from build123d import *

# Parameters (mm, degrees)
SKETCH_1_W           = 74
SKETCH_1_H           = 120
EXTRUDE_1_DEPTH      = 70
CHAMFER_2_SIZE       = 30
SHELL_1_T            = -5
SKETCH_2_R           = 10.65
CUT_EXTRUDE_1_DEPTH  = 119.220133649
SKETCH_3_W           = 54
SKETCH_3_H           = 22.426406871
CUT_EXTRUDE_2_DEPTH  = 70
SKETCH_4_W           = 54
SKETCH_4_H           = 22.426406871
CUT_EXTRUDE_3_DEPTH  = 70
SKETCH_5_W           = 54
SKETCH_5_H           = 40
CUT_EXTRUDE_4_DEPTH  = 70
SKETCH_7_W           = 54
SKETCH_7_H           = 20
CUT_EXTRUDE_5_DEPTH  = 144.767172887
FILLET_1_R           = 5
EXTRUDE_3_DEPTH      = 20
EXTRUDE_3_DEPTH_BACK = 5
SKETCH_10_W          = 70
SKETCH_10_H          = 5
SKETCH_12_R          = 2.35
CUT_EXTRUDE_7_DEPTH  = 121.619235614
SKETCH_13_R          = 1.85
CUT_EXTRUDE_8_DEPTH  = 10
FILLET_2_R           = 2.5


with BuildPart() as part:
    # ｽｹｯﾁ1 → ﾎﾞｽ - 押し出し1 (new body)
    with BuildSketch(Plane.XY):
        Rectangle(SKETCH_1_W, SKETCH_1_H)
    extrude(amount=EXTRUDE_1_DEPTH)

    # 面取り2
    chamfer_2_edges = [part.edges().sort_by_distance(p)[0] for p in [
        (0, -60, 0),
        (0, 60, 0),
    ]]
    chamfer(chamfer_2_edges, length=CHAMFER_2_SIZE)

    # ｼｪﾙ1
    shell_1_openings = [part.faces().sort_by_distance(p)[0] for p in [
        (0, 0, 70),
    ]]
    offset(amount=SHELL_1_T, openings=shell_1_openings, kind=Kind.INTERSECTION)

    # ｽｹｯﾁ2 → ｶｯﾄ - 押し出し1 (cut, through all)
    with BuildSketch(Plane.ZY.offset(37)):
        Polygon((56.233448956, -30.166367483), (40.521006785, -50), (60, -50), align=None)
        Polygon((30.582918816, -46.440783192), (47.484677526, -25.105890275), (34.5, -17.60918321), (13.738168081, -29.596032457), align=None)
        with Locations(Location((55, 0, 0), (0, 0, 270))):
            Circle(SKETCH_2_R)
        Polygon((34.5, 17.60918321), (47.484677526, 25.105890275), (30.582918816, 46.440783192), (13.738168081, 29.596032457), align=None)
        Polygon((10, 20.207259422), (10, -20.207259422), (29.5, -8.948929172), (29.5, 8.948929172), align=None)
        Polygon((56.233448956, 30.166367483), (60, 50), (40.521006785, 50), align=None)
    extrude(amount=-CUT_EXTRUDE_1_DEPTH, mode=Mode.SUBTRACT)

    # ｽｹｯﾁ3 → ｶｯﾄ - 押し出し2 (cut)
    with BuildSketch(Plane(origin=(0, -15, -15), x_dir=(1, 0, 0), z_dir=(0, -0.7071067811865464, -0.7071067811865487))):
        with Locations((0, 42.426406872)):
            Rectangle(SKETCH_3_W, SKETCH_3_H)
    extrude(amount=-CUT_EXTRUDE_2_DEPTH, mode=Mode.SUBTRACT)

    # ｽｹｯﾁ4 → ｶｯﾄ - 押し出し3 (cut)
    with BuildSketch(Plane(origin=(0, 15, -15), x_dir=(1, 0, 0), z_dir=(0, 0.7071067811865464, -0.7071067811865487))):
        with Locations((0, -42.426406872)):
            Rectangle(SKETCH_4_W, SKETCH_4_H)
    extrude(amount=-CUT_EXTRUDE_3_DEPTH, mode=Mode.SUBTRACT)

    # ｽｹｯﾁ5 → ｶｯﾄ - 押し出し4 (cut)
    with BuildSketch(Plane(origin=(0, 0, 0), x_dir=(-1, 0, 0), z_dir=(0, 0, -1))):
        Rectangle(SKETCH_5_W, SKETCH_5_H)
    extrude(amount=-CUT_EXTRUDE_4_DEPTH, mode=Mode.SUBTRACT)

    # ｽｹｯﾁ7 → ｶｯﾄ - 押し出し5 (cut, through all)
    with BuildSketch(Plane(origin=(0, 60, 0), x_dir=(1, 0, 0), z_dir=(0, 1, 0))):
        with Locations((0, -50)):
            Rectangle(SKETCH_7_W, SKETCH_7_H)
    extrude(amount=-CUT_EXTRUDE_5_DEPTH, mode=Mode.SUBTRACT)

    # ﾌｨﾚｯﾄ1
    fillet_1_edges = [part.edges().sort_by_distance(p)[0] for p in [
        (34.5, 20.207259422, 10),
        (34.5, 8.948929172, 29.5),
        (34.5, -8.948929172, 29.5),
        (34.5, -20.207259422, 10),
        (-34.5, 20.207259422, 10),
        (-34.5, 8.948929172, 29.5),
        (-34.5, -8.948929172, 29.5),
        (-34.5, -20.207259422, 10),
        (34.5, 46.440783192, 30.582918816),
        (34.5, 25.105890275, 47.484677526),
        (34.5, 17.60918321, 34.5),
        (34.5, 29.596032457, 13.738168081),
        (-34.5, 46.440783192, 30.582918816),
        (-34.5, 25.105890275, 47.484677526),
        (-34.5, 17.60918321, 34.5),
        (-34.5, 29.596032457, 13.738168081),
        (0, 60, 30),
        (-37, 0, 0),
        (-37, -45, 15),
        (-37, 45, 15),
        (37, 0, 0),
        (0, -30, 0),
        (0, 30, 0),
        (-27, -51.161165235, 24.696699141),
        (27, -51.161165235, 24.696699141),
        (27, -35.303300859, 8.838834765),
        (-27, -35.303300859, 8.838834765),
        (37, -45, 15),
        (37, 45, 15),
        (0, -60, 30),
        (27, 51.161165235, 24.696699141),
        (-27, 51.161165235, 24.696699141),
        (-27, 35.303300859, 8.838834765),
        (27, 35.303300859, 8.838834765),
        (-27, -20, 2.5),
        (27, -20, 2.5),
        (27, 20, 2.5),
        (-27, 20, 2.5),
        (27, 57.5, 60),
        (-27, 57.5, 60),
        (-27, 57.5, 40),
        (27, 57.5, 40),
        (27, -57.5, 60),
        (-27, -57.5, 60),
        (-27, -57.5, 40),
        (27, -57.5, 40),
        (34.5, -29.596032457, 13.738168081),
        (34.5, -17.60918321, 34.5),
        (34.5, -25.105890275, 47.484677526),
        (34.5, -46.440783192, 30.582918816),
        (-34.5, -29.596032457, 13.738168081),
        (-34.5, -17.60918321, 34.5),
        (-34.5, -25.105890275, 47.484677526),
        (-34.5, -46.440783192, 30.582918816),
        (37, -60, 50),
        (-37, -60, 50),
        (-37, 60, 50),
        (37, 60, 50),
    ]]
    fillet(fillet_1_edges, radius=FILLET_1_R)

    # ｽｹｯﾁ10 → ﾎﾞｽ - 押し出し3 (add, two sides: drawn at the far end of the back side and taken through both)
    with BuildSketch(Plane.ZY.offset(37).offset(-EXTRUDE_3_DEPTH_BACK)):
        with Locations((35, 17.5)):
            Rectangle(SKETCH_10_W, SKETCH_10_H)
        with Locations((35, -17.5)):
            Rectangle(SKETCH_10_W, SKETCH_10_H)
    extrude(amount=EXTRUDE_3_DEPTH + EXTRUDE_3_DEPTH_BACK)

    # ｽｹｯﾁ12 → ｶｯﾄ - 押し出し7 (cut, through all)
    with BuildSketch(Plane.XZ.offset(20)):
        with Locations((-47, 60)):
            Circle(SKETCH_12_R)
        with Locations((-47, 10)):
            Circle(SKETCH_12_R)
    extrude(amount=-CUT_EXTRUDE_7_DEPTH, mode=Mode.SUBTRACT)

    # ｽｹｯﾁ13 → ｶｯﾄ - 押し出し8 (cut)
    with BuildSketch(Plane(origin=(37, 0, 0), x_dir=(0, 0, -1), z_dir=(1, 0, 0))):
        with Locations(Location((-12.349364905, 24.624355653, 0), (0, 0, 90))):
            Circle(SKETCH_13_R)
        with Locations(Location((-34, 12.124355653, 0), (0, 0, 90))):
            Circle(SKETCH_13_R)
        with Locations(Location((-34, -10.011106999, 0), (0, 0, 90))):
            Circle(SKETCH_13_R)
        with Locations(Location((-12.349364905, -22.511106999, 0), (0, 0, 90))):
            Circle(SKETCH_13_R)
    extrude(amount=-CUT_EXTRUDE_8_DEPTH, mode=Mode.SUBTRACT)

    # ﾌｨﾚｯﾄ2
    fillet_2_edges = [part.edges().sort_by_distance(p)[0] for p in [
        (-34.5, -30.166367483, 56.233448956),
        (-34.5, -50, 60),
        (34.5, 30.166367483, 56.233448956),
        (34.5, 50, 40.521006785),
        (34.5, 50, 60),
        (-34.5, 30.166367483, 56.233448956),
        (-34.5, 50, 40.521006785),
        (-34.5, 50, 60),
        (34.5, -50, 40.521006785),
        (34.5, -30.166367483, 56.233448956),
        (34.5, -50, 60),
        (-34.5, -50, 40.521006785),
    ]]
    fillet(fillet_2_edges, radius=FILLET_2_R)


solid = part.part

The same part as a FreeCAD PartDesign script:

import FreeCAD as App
import Part
import Sketcher
from FreeCAD import Vector
Q = App.Units.Quantity


def edges_at(feature, points):
    """Names of the edges that pass closest to the given points."""
    edges = feature.Shape.Edges
    near = lambda p: min(range(len(edges)), key=lambda i: edges[i].distToShape(Part.Vertex(*p))[0])
    return sorted({f"Edge{near(p) + 1}" for p in points})


def faces_at(feature, points):
    """Names of the faces that lie closest to the given points."""
    faces = feature.Shape.Faces
    near = lambda p: min(range(len(faces)), key=lambda i: faces[i].distToShape(Part.Vertex(*p))[0])
    return sorted({f"Face{near(p) + 1}" for p in points})

doc = App.newDocument("Part")
body = doc.addObject("PartDesign::Body", "Body")

# Sketch on XY plane
sketch1 = body.newObject("Sketcher::SketchObject", "Sketch")
sketch1.AttachmentSupport = (doc.getObject("XY_Plane"), [""])
sketch1.MapMode = "FlatFace"
sketch1.addGeometry([
    Part.LineSegment(Vector(-37, 60, 0), Vector(-37, -60, 0)),
    Part.LineSegment(Vector(-37, -60, 0), Vector(37, -60, 0)),
    Part.LineSegment(Vector(37, -60, 0), Vector(37, 60, 0)),
    Part.LineSegment(Vector(37, 60, 0), Vector(-37, 60, 0)),
], False)
sketch1.addConstraint([
    Sketcher.Constraint("Coincident", 0, 2, 1, 1),
    Sketcher.Constraint("Coincident", 1, 2, 2, 1),
    Sketcher.Constraint("Coincident", 2, 2, 3, 1),
    Sketcher.Constraint("Coincident", 3, 2, 0, 1),
    Sketcher.Constraint("Vertical", 0),
    Sketcher.Constraint("Horizontal", 1),
    Sketcher.Constraint("Vertical", 2),
    Sketcher.Constraint("Horizontal", 3),
    Sketcher.Constraint("Symmetric", 0, 2, 2, 2, -1, 1),
    Sketcher.Constraint("DistanceX", 1, 1, 1, 2, Q("74 mm")),
    Sketcher.Constraint("DistanceY", 0, 2, 0, 1, Q("120 mm")),
])
pad1 = body.newObject("PartDesign::Pad", "Pad")
pad1.Profile = sketch1
pad1.Length = 70
doc.recompute()

chamfer = body.newObject("PartDesign::Chamfer", "Chamfer")
chamfer.Base = (pad1, edges_at(pad1, [(0, -60, 0), (0, 60, 0)]))
chamfer.Size = 30
doc.recompute()

thickness = body.newObject("PartDesign::Thickness", "Thickness")
thickness.Base = (chamfer, faces_at(chamfer, [(0, 0, 70)]))
thickness.Value = 5
thickness.Reversed = True
thickness.Join = "Intersection"

# Sketch on YZ plane
sketch2 = body.newObject("Sketcher::SketchObject", "Sketch001")
sketch2.AttachmentSupport = (doc.getObject("YZ_Plane"), [""])
sketch2.MapMode = "FlatFace"
sketch2.AttachmentOffset = App.Placement(Vector(0, 0, -37), App.Rotation())
sketch2.addGeometry([
    Part.LineSegment(Vector(-30, 56, 0), Vector(-50, 41, 0)),  # 0
    Part.LineSegment(Vector(-50, 41, 0), Vector(-50, 60, 0)),  # 1
    Part.LineSegment(Vector(-50, 60, 0), Vector(-30, 56, 0)),  # 2
    Part.LineSegment(Vector(-46, 31, 0), Vector(-25, 47, 0)),  # 3
    Part.LineSegment(Vector(-25, 47, 0), Vector(-18, 34, 0)),  # 4
    Part.LineSegment(Vector(-18, 34, 0), Vector(-30, 14, 0)),  # 5
    Part.LineSegment(Vector(-30, 14, 0), Vector(-46, 31, 0)),  # 6
    Part.Circle(Vector(0, 55, 0), Vector(0, 0, 1), 11),  # 7
    Part.LineSegment(Vector(18, 34, 0), Vector(25, 47, 0)),  # 8
    Part.LineSegment(Vector(25, 47, 0), Vector(46, 31, 0)),  # 9
    Part.LineSegment(Vector(46, 31, 0), Vector(30, 14, 0)),  # 10
    Part.LineSegment(Vector(30, 14, 0), Vector(18, 34, 0)),  # 11
    Part.LineSegment(Vector(20, 10, 0), Vector(-20, 10, 0)),  # 12
    Part.LineSegment(Vector(-20, 10, 0), Vector(-9, 30, 0)),  # 13
    Part.LineSegment(Vector(-9, 30, 0), Vector(9, 30, 0)),  # 14
    Part.LineSegment(Vector(9, 30, 0), Vector(20, 10, 0)),  # 15
    Part.LineSegment(Vector(30, 56, 0), Vector(50, 60, 0)),  # 16
    Part.LineSegment(Vector(50, 60, 0), Vector(50, 41, 0)),  # 17
    Part.LineSegment(Vector(50, 41, 0), Vector(30, 56, 0)),  # 18
], False)
sketch2.addConstraint([
    Sketcher.Constraint("Coincident", 0, 2, 1, 1),
    Sketcher.Constraint("Coincident", 1, 2, 2, 1),
    Sketcher.Constraint("Coincident", 2, 2, 0, 1),
    Sketcher.Constraint("Coincident", 3, 2, 4, 1),
    Sketcher.Constraint("Coincident", 4, 2, 5, 1),
    Sketcher.Constraint("Coincident", 5, 2, 6, 1),
    Sketcher.Constraint("Coincident", 6, 2, 3, 1),
    Sketcher.Constraint("Coincident", 8, 2, 9, 1),
    Sketcher.Constraint("Coincident", 9, 2, 10, 1),
    Sketcher.Constraint("Coincident", 10, 2, 11, 1),
    Sketcher.Constraint("Coincident", 11, 2, 8, 1),
    Sketcher.Constraint("Coincident", 12, 2, 13, 1),
    Sketcher.Constraint("Coincident", 13, 2, 14, 1),
    Sketcher.Constraint("Coincident", 14, 2, 15, 1),
    Sketcher.Constraint("Coincident", 15, 2, 12, 1),
    Sketcher.Constraint("Coincident", 16, 2, 17, 1),
    Sketcher.Constraint("Coincident", 17, 2, 18, 1),
    Sketcher.Constraint("Coincident", 18, 2, 16, 1),
    Sketcher.Constraint("Vertical", 1),
    Sketcher.Constraint("Horizontal", 12),
    Sketcher.Constraint("Horizontal", 14),
    Sketcher.Constraint("Vertical", 17),
    Sketcher.Constraint("Symmetric", 3, 2, 8, 2, -2),
    Sketcher.Constraint("Symmetric", 6, 2, 9, 2, -2),
    Sketcher.Constraint("Symmetric", 5, 2, 10, 2, -2),
    Sketcher.Constraint("Symmetric", 4, 2, 11, 2, -2),
    Sketcher.Constraint("Symmetric", 1, 2, 16, 2, -2),
    Sketcher.Constraint("Symmetric", 2, 2, 18, 2, -2),
    Sketcher.Constraint("PointOnObject", 7, 3, -2),
    Sketcher.Constraint("Parallel", 0, 3),
    Sketcher.Constraint("Parallel", 5, 8),
    Sketcher.Constraint("Perpendicular", 6, 10),
    Sketcher.Constraint("Parallel", 8, 13),
    Sketcher.Constraint("Parallel", 11, 15),
    Sketcher.Constraint("Parallel", 9, 18),
    Sketcher.Constraint("Diameter", 7, Q("21.3 mm")),
    Sketcher.Constraint("Angle", 4, Q("-60 deg")),
    Sketcher.Constraint("DistanceY", -1, 1, 7, 3, Q("55 mm")),
    Sketcher.Constraint("DistanceX", 0, 2, -1, 1, Q("50 mm")),
    Sketcher.Constraint("DistanceY", -1, 1, 1, 2, Q("60 mm")),
    Sketcher.Constraint("DistanceY", -1, 1, 12, 2, Q("10 mm")),
    Sketcher.Constraint("DistanceY", 13, 2, 4, 2, Q("5 mm")),
    Sketcher.Constraint("DistanceY", -1, 1, 4, 2, Q("34.5 mm")),
    Sketcher.Constraint("Distance", 5, Q("23.973698 mm")),
    Sketcher.Constraint("DistanceX", 12, 2, 12, 1, Q("40.414519 mm")),
    Sketcher.Constraint("DistanceX", 6, 2, 4, 2, Q("28.8316 mm")),
    Sketcher.Constraint("DistanceY", 1, 1, 1, 2, Q("19.478993 mm")),
    Sketcher.Constraint("DistanceY", -1, 1, 2, 2, Q("56.233449 mm")),
    Sketcher.Constraint("DistanceX", 3, 2, -1, 1, Q("25.10589 mm")),
    Sketcher.Constraint("DistanceX", 12, 2, -1, 1, Q("20.207259 mm")),
    Sketcher.Constraint("DistanceY", 3, 2, 2, 2, Q("8.748771 mm")),
])
pocket1 = body.newObject("PartDesign::Pocket", "Pocket")
pocket1.Profile = sketch2
pocket1.Type = "ThroughAll"
pocket1.Reversed = True

# Sketch on an angled plane
sketch3 = body.newObject("Sketcher::SketchObject", "Sketch002")
sketch3.Placement = App.Placement(Vector(0, -15, -15), App.Rotation(Vector(1, 0, 0), Vector(0, -0.707106781, 0.707106781), Vector(0, -0.707106781, -0.707106781), "ZXY"))
sketch3.addGeometry([
    Part.LineSegment(Vector(-27, 54, 0), Vector(-27, 31, 0)),
    Part.LineSegment(Vector(-27, 31, 0), Vector(27, 31, 0)),
    Part.LineSegment(Vector(27, 31, 0), Vector(27, 54, 0)),
    Part.LineSegment(Vector(27, 54, 0), Vector(-27, 54, 0)),
], False)
sketch3.addConstraint([
    Sketcher.Constraint("Coincident", 0, 2, 1, 1),
    Sketcher.Constraint("Coincident", 1, 2, 2, 1),
    Sketcher.Constraint("Coincident", 2, 2, 3, 1),
    Sketcher.Constraint("Coincident", 3, 2, 0, 1),
    Sketcher.Constraint("Vertical", 0),
    Sketcher.Constraint("Horizontal", 1),
    Sketcher.Constraint("Vertical", 2),
    Sketcher.Constraint("Horizontal", 3),
    Sketcher.Constraint("DistanceX", 1, 1, 1, 2, Q("54 mm")),
    Sketcher.Constraint("DistanceX", 0, 2, -1, 1, Q("27 mm")),
    Sketcher.Constraint("DistanceY", 0, 2, 0, 1, Q("22.426407 mm")),
    Sketcher.Constraint("DistanceY", -1, 1, 2, 2, Q("53.63961 mm")),
])
pocket2 = body.newObject("PartDesign::Pocket", "Pocket001")
pocket2.Profile = sketch3
pocket2.Length = 70

# Sketch on an angled plane
sketch4 = body.newObject("Sketcher::SketchObject", "Sketch003")
sketch4.Placement = App.Placement(Vector(0, 15, -15), App.Rotation(Vector(1, 0, 0), Vector(0, -0.707106781, -0.707106781), Vector(0, 0.707106781, -0.707106781), "ZXY"))
sketch4.addGeometry([
    Part.LineSegment(Vector(-27, -31, 0), Vector(-27, -54, 0)),
    Part.LineSegment(Vector(-27, -54, 0), Vector(27, -54, 0)),
    Part.LineSegment(Vector(27, -54, 0), Vector(27, -31, 0)),
    Part.LineSegment(Vector(27, -31, 0), Vector(-27, -31, 0)),
], False)
sketch4.addConstraint([
    Sketcher.Constraint("Coincident", 0, 2, 1, 1),
    Sketcher.Constraint("Coincident", 1, 2, 2, 1),
    Sketcher.Constraint("Coincident", 2, 2, 3, 1),
    Sketcher.Constraint("Coincident", 3, 2, 0, 1),
    Sketcher.Constraint("Vertical", 0),
    Sketcher.Constraint("Horizontal", 1),
    Sketcher.Constraint("Vertical", 2),
    Sketcher.Constraint("Horizontal", 3),
    Sketcher.Constraint("DistanceX", 1, 1, 1, 2, Q("54 mm")),
    Sketcher.Constraint("DistanceX", 0, 2, -1, 1, Q("27 mm")),
    Sketcher.Constraint("DistanceY", 0, 2, 0, 1, Q("22.426407 mm")),
    Sketcher.Constraint("DistanceY", 0, 2, -1, 1, Q("53.63961 mm")),
])
pocket3 = body.newObject("PartDesign::Pocket", "Pocket002")
pocket3.Profile = sketch4
pocket3.Length = 70

# Sketch on XY plane
sketch5 = body.newObject("Sketcher::SketchObject", "Sketch004")
sketch5.AttachmentSupport = (doc.getObject("XY_Plane"), [""])
sketch5.MapMode = "FlatFace"
sketch5.addGeometry([
    Part.LineSegment(Vector(27, 20, 0), Vector(27, -20, 0)),
    Part.LineSegment(Vector(27, -20, 0), Vector(-27, -20, 0)),
    Part.LineSegment(Vector(-27, -20, 0), Vector(-27, 20, 0)),
    Part.LineSegment(Vector(-27, 20, 0), Vector(27, 20, 0)),
], False)
sketch5.addConstraint([
    Sketcher.Constraint("Coincident", 0, 2, 1, 1),
    Sketcher.Constraint("Coincident", 1, 2, 2, 1),
    Sketcher.Constraint("Coincident", 2, 2, 3, 1),
    Sketcher.Constraint("Coincident", 3, 2, 0, 1),
    Sketcher.Constraint("Vertical", 0),
    Sketcher.Constraint("Horizontal", 1),
    Sketcher.Constraint("Vertical", 2),
    Sketcher.Constraint("Horizontal", 3),
    Sketcher.Constraint("Symmetric", 0, 2, 2, 2, -1, 1),
    Sketcher.Constraint("DistanceX", 1, 2, 1, 1, Q("54 mm")),
    Sketcher.Constraint("DistanceY", 0, 2, 0, 1, Q("40 mm")),
])
pocket4 = body.newObject("PartDesign::Pocket", "Pocket003")
pocket4.Profile = sketch5
pocket4.Length = 70
pocket4.Reversed = True

# Sketch on XZ plane
sketch6 = body.newObject("Sketcher::SketchObject", "Sketch005")
sketch6.AttachmentSupport = (doc.getObject("XZ_Plane"), [""])
sketch6.MapMode = "FlatFace"
sketch6.AttachmentOffset = App.Placement(Vector(0, 0, -60), App.Rotation())
sketch6.addGeometry([
    Part.LineSegment(Vector(-27, 40, 0), Vector(-27, 60, 0)),
    Part.LineSegment(Vector(-27, 60, 0), Vector(27, 60, 0)),
    Part.LineSegment(Vector(27, 60, 0), Vector(27, 40, 0)),
    Part.LineSegment(Vector(27, 40, 0), Vector(-27, 40, 0)),
], False)
sketch6.addConstraint([
    Sketcher.Constraint("Coincident", 0, 2, 1, 1),
    Sketcher.Constraint("Coincident", 1, 2, 2, 1),
    Sketcher.Constraint("Coincident", 2, 2, 3, 1),
    Sketcher.Constraint("Coincident", 3, 2, 0, 1),
    Sketcher.Constraint("Vertical", 0),
    Sketcher.Constraint("Horizontal", 1),
    Sketcher.Constraint("Vertical", 2),
    Sketcher.Constraint("Horizontal", 3),
    Sketcher.Constraint("DistanceX", 1, 1, 1, 2, Q("54 mm")),
    Sketcher.Constraint("DistanceY", 0, 1, 0, 2, Q("20 mm")),
    Sketcher.Constraint("DistanceX", 0, 2, -1, 1, Q("27 mm")),
    Sketcher.Constraint("DistanceY", -1, 1, 0, 2, Q("60 mm")),
])
pocket5 = body.newObject("PartDesign::Pocket", "Pocket004")
pocket5.Profile = sketch6
pocket5.Type = "ThroughAll"
pocket5.Reversed = True
doc.recompute()

fillet = body.newObject("PartDesign::Fillet", "Fillet")
fillet.Base = (pocket5, edges_at(pocket5, [
    (34.5, 20.207, 10),
    (34.5, 8.949, 29.5),
    (34.5, -8.949, 29.5),
    (34.5, -20.207, 10),
    (-34.5, 20.207, 10),
    (-34.5, 8.949, 29.5),
    (-34.5, -8.949, 29.5),
    (-34.5, -20.207, 10),
    (34.5, 46.441, 30.583),
    (34.5, 25.106, 47.485),
    (34.5, 17.609, 34.5),
    (34.5, 29.596, 13.738),
    (-34.5, 46.441, 30.583),
    (-34.5, 25.106, 47.485),
    (-34.5, 17.609, 34.5),
    (-34.5, 29.596, 13.738),
    (0, 60, 30),
    (-37, 0, 0),
    (-37, -45, 15),
    (-37, 45, 15),
    (37, 0, 0),
    (0, -30, 0),
    (0, 30, 0),
    (-27, -51.161, 24.697),
    (27, -51.161, 24.697),
    (27, -35.303, 8.839),
    (-27, -35.303, 8.839),
    (37, -45, 15),
    (37, 45, 15),
    (0, -60, 30),
    (27, 51.161, 24.697),
    (-27, 51.161, 24.697),
    (-27, 35.303, 8.839),
    (27, 35.303, 8.839),
    (-27, -20, 2.5),
    (27, -20, 2.5),
    (27, 20, 2.5),
    (-27, 20, 2.5),
    (27, 57.5, 60),
    (-27, 57.5, 60),
    (-27, 57.5, 40),
    (27, 57.5, 40),
    (27, -57.5, 60),
    (-27, -57.5, 60),
    (-27, -57.5, 40),
    (27, -57.5, 40),
    (34.5, -29.596, 13.738),
    (34.5, -17.609, 34.5),
    (34.5, -25.106, 47.485),
    (34.5, -46.441, 30.583),
    (-34.5, -29.596, 13.738),
    (-34.5, -17.609, 34.5),
    (-34.5, -25.106, 47.485),
    (-34.5, -46.441, 30.583),
    (37, -60, 50),
    (-37, -60, 50),
    (-37, 60, 50),
    (37, 60, 50),
]))
fillet.Radius = 5

# Sketch on YZ plane
sketch7 = body.newObject("Sketcher::SketchObject", "Sketch006")
sketch7.AttachmentSupport = (doc.getObject("YZ_Plane"), [""])
sketch7.MapMode = "FlatFace"
sketch7.AttachmentOffset = App.Placement(Vector(0, 0, -37), App.Rotation())
sketch7.addGeometry([
    Part.LineSegment(Vector(20, 0, 0), Vector(15, 0, 0)),  # 0
    Part.LineSegment(Vector(15, 0, 0), Vector(15, 70, 0)),  # 1
    Part.LineSegment(Vector(15, 70, 0), Vector(20, 70, 0)),  # 2
    Part.LineSegment(Vector(20, 70, 0), Vector(20, 0, 0)),  # 3
    Part.LineSegment(Vector(-15, 0, 0), Vector(-20, 0, 0)),  # 4
    Part.LineSegment(Vector(-20, 0, 0), Vector(-20, 70, 0)),  # 5
    Part.LineSegment(Vector(-20, 70, 0), Vector(-15, 70, 0)),  # 6
    Part.LineSegment(Vector(-15, 70, 0), Vector(-15, 0, 0)),  # 7
], False)
sketch7.addConstraint([
    Sketcher.Constraint("Coincident", 0, 2, 1, 1),
    Sketcher.Constraint("Coincident", 1, 2, 2, 1),
    Sketcher.Constraint("Coincident", 2, 2, 3, 1),
    Sketcher.Constraint("Coincident", 3, 2, 0, 1),
    Sketcher.Constraint("Coincident", 4, 2, 5, 1),
    Sketcher.Constraint("Coincident", 5, 2, 6, 1),
    Sketcher.Constraint("Coincident", 6, 2, 7, 1),
    Sketcher.Constraint("Coincident", 7, 2, 4, 1),
    Sketcher.Constraint("Horizontal", 0),
    Sketcher.Constraint("Vertical", 1),
    Sketcher.Constraint("Horizontal", 2),
    Sketcher.Constraint("Vertical", 3),
    Sketcher.Constraint("Horizontal", 4),
    Sketcher.Constraint("Vertical", 5),
    Sketcher.Constraint("Horizontal", 6),
    Sketcher.Constraint("Vertical", 7),
    Sketcher.Constraint("Symmetric", 3, 2, 4, 2, -1, 1),
    Sketcher.Constraint("Symmetric", 1, 2, 6, 2, -2),
    Sketcher.Constraint("PointOnObject", 0, 2, -1),
    Sketcher.Constraint("DistanceX", 0, 2, 0, 1, Q("5 mm")),
    Sketcher.Constraint("DistanceY", 1, 1, 1, 2, Q("70 mm")),
    Sketcher.Constraint("DistanceX", -1, 1, 0, 2, Q("15 mm")),
])
pad2 = body.newObject("PartDesign::Pad", "Pad001")
pad2.Profile = sketch7
pad2.Type = "TwoLengths"
pad2.Length = 20
pad2.Length2 = 5
pad2.Reversed = True

# Sketch on XZ plane
sketch8 = body.newObject("Sketcher::SketchObject", "Sketch007")
sketch8.AttachmentSupport = (doc.getObject("XZ_Plane"), [""])
sketch8.MapMode = "FlatFace"
sketch8.AttachmentOffset = App.Placement(Vector(0, 0, 20), App.Rotation())
sketch8.addGeometry([
    Part.Circle(Vector(-47, 60, 0), Vector(0, 0, 1), 2.4),
    Part.Circle(Vector(-47, 10, 0), Vector(0, 0, 1), 2.4),
], False)
sketch8.addConstraint([
    Sketcher.Constraint("Equal", 0, 1),
    Sketcher.Constraint("Vertical", 0, 3, 1, 3),
    Sketcher.Constraint("Diameter", 0, Q("4.7 mm")),
    Sketcher.Constraint("DistanceX", 0, 3, -1, 1, Q("47 mm")),
    Sketcher.Constraint("DistanceY", -1, 1, 0, 3, Q("60 mm")),
    Sketcher.Constraint("DistanceY", -1, 1, 1, 3, Q("10 mm")),
])
pocket6 = body.newObject("PartDesign::Pocket", "Pocket005")
pocket6.Profile = sketch8
pocket6.Type = "ThroughAll"

# Sketch on YZ plane
sketch9 = body.newObject("Sketcher::SketchObject", "Sketch008")
sketch9.AttachmentSupport = (doc.getObject("YZ_Plane"), [""])
sketch9.MapMode = "FlatFace"
sketch9.AttachmentOffset = App.Placement(Vector(0, 0, 37), App.Rotation())
sketch9.addGeometry([
    Part.Circle(Vector(24.6, 12.3, 0), Vector(0, 0, 1), 1.9),
    Part.Circle(Vector(12.1, 34, 0), Vector(0, 0, 1), 1.9),
    Part.Circle(Vector(-10, 34, 0), Vector(0, 0, 1), 1.9),
    Part.Circle(Vector(-22.5, 12.3, 0), Vector(0, 0, 1), 1.9),
], False)
sketch9.addConstraint([
    Sketcher.Constraint("Equal", 0, 1),
    Sketcher.Constraint("Equal", 1, 2),
    Sketcher.Constraint("Equal", 2, 3),
    Sketcher.Constraint("Horizontal", 1, 3, 2, 3),
    Sketcher.Constraint("Horizontal", 0, 3, 3, 3),
    Sketcher.Constraint("Diameter", 0, Q("3.7 mm")),
    Sketcher.Constraint("DistanceY", -1, 1, 1, 3, Q("34 mm")),
    Sketcher.Constraint("DistanceX", 1, 3, 0, 3, Q("12.5 mm")),
    Sketcher.Constraint("DistanceX", 3, 3, 2, 3, Q("12.5 mm")),
    Sketcher.Constraint("DistanceX", -1, 1, 0, 3, Q("24.624356 mm")),
    Sketcher.Constraint("DistanceY", -1, 1, 0, 3, Q("12.349365 mm")),
    Sketcher.Constraint("DistanceX", 2, 3, -1, 1, Q("10.011107 mm")),
])
pocket7 = body.newObject("PartDesign::Pocket", "Pocket006")
pocket7.Profile = sketch9
pocket7.Length = 10
doc.recompute()

fillet2 = body.newObject("PartDesign::Fillet", "Fillet001")
fillet2.Base = (pocket7, edges_at(pocket7, [
    (-34.5, -30.166, 56.233),
    (-34.5, -50, 60),
    (34.5, 30.166, 56.233),
    (34.5, 50, 40.521),
    (34.5, 50, 60),
    (-34.5, 30.166, 56.233),
    (-34.5, 50, 40.521),
    (-34.5, 50, 60),
    (34.5, -50, 40.521),
    (34.5, -30.166, 56.233),
    (34.5, -50, 60),
    (-34.5, -50, 40.521),
]))
fillet2.Radius = 2.5

doc.recompute()
